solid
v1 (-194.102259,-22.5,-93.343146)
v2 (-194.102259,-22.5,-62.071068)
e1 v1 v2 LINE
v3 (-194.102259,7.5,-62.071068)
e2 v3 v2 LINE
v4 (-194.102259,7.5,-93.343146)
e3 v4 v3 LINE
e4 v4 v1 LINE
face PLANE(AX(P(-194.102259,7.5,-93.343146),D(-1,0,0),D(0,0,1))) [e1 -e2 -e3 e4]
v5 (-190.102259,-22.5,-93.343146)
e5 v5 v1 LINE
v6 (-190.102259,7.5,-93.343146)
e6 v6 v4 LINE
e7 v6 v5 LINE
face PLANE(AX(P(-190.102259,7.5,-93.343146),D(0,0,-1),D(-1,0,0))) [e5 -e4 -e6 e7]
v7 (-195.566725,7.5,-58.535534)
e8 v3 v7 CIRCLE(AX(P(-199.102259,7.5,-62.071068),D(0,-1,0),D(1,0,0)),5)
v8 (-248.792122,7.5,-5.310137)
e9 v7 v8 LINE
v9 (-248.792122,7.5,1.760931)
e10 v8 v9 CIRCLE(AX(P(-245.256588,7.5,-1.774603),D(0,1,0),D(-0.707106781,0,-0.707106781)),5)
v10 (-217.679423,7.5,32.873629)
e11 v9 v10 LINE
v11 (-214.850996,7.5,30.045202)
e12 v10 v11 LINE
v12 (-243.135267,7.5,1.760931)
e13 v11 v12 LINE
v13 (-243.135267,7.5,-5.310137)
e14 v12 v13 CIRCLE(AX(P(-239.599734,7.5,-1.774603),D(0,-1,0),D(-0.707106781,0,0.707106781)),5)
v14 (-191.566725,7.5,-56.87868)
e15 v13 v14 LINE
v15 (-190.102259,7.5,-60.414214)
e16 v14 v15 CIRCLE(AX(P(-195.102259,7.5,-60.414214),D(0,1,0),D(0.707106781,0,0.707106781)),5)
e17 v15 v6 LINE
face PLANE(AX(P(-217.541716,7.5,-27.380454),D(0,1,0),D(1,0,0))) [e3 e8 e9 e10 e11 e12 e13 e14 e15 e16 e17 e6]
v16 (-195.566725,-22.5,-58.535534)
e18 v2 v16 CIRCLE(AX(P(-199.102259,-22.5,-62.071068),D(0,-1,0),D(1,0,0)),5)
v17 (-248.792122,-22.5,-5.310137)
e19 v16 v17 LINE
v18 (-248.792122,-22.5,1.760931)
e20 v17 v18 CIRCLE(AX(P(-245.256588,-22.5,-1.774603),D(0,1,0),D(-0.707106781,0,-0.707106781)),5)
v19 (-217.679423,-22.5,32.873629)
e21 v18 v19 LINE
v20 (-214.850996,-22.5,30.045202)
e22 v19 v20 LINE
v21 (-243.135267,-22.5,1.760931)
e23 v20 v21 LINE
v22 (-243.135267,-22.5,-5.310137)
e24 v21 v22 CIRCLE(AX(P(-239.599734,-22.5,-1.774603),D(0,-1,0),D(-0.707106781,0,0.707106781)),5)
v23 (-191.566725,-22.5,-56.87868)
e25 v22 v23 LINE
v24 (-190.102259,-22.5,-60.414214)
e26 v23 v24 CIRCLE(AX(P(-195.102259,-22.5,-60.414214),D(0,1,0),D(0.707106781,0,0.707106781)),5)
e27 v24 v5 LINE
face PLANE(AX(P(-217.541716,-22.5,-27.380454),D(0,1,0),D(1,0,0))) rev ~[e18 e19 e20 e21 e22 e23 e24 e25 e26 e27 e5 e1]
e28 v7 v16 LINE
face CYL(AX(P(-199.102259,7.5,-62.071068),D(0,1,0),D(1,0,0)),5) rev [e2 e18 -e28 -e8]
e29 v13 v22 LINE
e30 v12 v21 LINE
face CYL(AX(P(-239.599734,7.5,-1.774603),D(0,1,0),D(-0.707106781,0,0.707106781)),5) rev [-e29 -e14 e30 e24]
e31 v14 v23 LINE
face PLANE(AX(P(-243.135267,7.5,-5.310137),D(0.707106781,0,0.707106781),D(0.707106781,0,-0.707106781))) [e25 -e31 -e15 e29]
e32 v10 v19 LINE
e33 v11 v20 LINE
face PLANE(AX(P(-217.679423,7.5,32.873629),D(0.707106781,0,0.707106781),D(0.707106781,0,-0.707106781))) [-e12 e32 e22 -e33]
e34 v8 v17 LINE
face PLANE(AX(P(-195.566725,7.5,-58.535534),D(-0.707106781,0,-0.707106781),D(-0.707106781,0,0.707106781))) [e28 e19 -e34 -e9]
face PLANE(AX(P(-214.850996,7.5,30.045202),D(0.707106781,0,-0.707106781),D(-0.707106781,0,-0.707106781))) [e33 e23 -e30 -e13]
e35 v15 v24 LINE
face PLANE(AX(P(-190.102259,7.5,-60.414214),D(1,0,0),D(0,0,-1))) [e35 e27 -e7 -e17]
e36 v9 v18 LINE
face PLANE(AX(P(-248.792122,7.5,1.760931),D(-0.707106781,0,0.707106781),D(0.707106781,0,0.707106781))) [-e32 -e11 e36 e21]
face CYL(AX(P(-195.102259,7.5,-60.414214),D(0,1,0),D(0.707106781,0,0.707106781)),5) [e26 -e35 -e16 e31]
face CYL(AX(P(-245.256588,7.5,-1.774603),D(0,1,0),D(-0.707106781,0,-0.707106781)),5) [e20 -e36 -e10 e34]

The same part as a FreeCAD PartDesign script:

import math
import FreeCAD as App
import Part
import Sketcher
from FreeCAD import Vector
Q = App.Units.Quantity

doc = App.newDocument("Part")
params = doc.addObject("Spreadsheet::Sheet", "Params")
for row, (alias, value) in enumerate([
    ("sketch1_radius", "5 mm"),
    ("sketch1_width", "4 mm"),
    ("sketch1_length", "44 mm"),
    ("sketch1_length2", "4 mm"),
    ("pad1_length", "30 mm"),
], start=1):
    params.set(f"A{row}", alias)
    params.set(f"B{row}", "=" + value)
    params.setAlias(f"B{row}", alias)

body = doc.addObject("PartDesign::Body", "Body")

sketch1 = body.newObject("Sketcher::SketchObject", "Sketch")
sketch1.AttachmentSupport = (doc.getObject("XZ_Plane"), [""])
sketch1.MapMode = "FlatFace"
sketch1.AttachmentOffset = App.Placement(Vector(0, 0, -7.5), App.Rotation())
sketch1.addGeometry(Part.LineSegment(Vector(-248.792122, 1.760931, 0), Vector(-217.679423, 32.873629, 0)), False)
sketch1.addGeometry(Part.LineSegment(Vector(-217.679423, 32.873629, 0), Vector(-214.850996, 30.045202, 0)), False)
sketch1.addGeometry(Part.LineSegment(Vector(-214.850996, 30.045202, 0), Vector(-243.135267, 1.760931, 0)), False)
sketch1.addGeometry(Part.ArcOfCircle(Part.Circle(Vector(-239.599734, -1.774603, 0), Vector(0, 0, 1), 5), math.radians(135), math.radians(225)), False)
sketch1.addGeometry(Part.LineSegment(Vector(-243.135267, -5.310137, 0), Vector(-191.566725, -56.87868, 0)), False)
sketch1.addGeometry(Part.ArcOfCircle(Part.Circle(Vector(-195.102259, -60.414214, 0), Vector(0, 0, 1), 5), math.radians(0), math.radians(45)), False)
sketch1.addGeometry(Part.LineSegment(Vector(-190.102259, -60.414214, 0), Vector(-190.102259, -93.343146, 0)), False)
sketch1.addGeometry(Part.LineSegment(Vector(-190.102259, -93.343146, 0), Vector(-194.102259, -93.343146, 0)), False)
sketch1.addGeometry(Part.LineSegment(Vector(-194.102259, -93.343146, 0), Vector(-194.102259, -62.071068, 0)), False)
sketch1.addGeometry(Part.ArcOfCircle(Part.Circle(Vector(-199.102259, -62.071068, 0), Vector(0, 0, 1), 5), math.radians(0), math.radians(45)), False)
sketch1.addGeometry(Part.LineSegment(Vector(-195.566725, -58.535534, 0), Vector(-248.792122, -5.310137, 0)), False)
sketch1.addGeometry(Part.ArcOfCircle(Part.Circle(Vector(-245.256588, -1.774603, 0), Vector(0, 0, 1), 5), math.radians(135), math.radians(225)), False)
sketch1.addConstraint(Sketcher.Constraint("Coincident", 0, 2, 1, 1))
sketch1.addConstraint(Sketcher.Constraint("Coincident", 1, 2, 2, 1))
sketch1.addConstraint(Sketcher.Constraint("Tangent", 2, 2, 3, 1))
sketch1.addConstraint(Sketcher.Constraint("Tangent", 3, 2, 4, 1))
sketch1.addConstraint(Sketcher.Constraint("Tangent", 4, 2, 5, 2))
sketch1.addConstraint(Sketcher.Constraint("Tangent", 5, 1, 6, 1))
sketch1.addConstraint(Sketcher.Constraint("Coincident", 6, 2, 7, 1))
sketch1.addConstraint(Sketcher.Constraint("Coincident", 7, 2, 8, 1))
sketch1.addConstraint(Sketcher.Constraint("Tangent", 8, 2, 9, 1))
sketch1.addConstraint(Sketcher.Constraint("Tangent", 9, 2, 10, 1))
sketch1.addConstraint(Sketcher.Constraint("Tangent", 10, 2, 11, 2))
sketch1.addConstraint(Sketcher.Constraint("Tangent", 11, 1, 0, 1))
sketch1.addConstraint(Sketcher.Constraint("Vertical", 6))
sketch1.addConstraint(Sketcher.Constraint("Horizontal", 7))
sketch1.addConstraint(Sketcher.Constraint("Vertical", 8))
sketch1.addConstraint(Sketcher.Constraint("Equal", 3, 5))
sketch1.addConstraint(Sketcher.Constraint("Equal", 5, 9))
sketch1.addConstraint(Sketcher.Constraint("Equal", 9, 11))
sketch1.addConstraint(Sketcher.Constraint("Perpendicular", 0, 1))
sketch1.addConstraint(Sketcher.Constraint("Perpendicular", 1, 2))
sketch1.addConstraint(Sketcher.Constraint("Perpendicular", 2, 4))
sketch1.addConstraint(Sketcher.Constraint("Parallel", 4, 10))
sketch1.addConstraint(Sketcher.Constraint("Horizontal", 3, 3, 11, 3))
sketch1.addConstraint(Sketcher.Constraint("Vertical", 2, 2, 3, 2))
sketch1.addConstraint(Sketcher.Constraint("Radius", 3, Q("5 mm")))
sketch1.addConstraint(Sketcher.Constraint("DistanceX", 7, 2, 7, 1, Q("4 mm")))
sketch1.addConstraint(Sketcher.Constraint("Distance", 0, Q("44 mm")))
sketch1.addConstraint(Sketcher.Constraint("Distance", 1, Q("4 mm")))
sketch1.addConstraint(Sketcher.Constraint("DistanceY", 9, 3, 2, 2, Q("63.831998 mm")))
sketch1.addConstraint(Sketcher.Constraint("DistanceY", -1, 1, 1, 2, Q("30.045202 mm")))
sketch1.addConstraint(Sketcher.Constraint("DistanceY", 6, 2, 6, 1, Q("32.928932 mm")))
sketch1.addConstraint(Sketcher.Constraint("DistanceX", 5, 3, -1, 1, Q("195.102259 mm")))
sketch1.setExpression("Constraints[24]", "Params.sketch1_radius")
sketch1.setExpression("Constraints[25]", "Params.sketch1_width")
sketch1.setExpression("Constraints[26]", "Params.sketch1_length")
sketch1.setExpression("Constraints[27]", "Params.sketch1_length2")
pad1 = body.newObject("PartDesign::Pad", "Pad")
pad1.Profile = sketch1
pad1.setExpression("Length", "Params.pad1_length")

doc.recompute()
